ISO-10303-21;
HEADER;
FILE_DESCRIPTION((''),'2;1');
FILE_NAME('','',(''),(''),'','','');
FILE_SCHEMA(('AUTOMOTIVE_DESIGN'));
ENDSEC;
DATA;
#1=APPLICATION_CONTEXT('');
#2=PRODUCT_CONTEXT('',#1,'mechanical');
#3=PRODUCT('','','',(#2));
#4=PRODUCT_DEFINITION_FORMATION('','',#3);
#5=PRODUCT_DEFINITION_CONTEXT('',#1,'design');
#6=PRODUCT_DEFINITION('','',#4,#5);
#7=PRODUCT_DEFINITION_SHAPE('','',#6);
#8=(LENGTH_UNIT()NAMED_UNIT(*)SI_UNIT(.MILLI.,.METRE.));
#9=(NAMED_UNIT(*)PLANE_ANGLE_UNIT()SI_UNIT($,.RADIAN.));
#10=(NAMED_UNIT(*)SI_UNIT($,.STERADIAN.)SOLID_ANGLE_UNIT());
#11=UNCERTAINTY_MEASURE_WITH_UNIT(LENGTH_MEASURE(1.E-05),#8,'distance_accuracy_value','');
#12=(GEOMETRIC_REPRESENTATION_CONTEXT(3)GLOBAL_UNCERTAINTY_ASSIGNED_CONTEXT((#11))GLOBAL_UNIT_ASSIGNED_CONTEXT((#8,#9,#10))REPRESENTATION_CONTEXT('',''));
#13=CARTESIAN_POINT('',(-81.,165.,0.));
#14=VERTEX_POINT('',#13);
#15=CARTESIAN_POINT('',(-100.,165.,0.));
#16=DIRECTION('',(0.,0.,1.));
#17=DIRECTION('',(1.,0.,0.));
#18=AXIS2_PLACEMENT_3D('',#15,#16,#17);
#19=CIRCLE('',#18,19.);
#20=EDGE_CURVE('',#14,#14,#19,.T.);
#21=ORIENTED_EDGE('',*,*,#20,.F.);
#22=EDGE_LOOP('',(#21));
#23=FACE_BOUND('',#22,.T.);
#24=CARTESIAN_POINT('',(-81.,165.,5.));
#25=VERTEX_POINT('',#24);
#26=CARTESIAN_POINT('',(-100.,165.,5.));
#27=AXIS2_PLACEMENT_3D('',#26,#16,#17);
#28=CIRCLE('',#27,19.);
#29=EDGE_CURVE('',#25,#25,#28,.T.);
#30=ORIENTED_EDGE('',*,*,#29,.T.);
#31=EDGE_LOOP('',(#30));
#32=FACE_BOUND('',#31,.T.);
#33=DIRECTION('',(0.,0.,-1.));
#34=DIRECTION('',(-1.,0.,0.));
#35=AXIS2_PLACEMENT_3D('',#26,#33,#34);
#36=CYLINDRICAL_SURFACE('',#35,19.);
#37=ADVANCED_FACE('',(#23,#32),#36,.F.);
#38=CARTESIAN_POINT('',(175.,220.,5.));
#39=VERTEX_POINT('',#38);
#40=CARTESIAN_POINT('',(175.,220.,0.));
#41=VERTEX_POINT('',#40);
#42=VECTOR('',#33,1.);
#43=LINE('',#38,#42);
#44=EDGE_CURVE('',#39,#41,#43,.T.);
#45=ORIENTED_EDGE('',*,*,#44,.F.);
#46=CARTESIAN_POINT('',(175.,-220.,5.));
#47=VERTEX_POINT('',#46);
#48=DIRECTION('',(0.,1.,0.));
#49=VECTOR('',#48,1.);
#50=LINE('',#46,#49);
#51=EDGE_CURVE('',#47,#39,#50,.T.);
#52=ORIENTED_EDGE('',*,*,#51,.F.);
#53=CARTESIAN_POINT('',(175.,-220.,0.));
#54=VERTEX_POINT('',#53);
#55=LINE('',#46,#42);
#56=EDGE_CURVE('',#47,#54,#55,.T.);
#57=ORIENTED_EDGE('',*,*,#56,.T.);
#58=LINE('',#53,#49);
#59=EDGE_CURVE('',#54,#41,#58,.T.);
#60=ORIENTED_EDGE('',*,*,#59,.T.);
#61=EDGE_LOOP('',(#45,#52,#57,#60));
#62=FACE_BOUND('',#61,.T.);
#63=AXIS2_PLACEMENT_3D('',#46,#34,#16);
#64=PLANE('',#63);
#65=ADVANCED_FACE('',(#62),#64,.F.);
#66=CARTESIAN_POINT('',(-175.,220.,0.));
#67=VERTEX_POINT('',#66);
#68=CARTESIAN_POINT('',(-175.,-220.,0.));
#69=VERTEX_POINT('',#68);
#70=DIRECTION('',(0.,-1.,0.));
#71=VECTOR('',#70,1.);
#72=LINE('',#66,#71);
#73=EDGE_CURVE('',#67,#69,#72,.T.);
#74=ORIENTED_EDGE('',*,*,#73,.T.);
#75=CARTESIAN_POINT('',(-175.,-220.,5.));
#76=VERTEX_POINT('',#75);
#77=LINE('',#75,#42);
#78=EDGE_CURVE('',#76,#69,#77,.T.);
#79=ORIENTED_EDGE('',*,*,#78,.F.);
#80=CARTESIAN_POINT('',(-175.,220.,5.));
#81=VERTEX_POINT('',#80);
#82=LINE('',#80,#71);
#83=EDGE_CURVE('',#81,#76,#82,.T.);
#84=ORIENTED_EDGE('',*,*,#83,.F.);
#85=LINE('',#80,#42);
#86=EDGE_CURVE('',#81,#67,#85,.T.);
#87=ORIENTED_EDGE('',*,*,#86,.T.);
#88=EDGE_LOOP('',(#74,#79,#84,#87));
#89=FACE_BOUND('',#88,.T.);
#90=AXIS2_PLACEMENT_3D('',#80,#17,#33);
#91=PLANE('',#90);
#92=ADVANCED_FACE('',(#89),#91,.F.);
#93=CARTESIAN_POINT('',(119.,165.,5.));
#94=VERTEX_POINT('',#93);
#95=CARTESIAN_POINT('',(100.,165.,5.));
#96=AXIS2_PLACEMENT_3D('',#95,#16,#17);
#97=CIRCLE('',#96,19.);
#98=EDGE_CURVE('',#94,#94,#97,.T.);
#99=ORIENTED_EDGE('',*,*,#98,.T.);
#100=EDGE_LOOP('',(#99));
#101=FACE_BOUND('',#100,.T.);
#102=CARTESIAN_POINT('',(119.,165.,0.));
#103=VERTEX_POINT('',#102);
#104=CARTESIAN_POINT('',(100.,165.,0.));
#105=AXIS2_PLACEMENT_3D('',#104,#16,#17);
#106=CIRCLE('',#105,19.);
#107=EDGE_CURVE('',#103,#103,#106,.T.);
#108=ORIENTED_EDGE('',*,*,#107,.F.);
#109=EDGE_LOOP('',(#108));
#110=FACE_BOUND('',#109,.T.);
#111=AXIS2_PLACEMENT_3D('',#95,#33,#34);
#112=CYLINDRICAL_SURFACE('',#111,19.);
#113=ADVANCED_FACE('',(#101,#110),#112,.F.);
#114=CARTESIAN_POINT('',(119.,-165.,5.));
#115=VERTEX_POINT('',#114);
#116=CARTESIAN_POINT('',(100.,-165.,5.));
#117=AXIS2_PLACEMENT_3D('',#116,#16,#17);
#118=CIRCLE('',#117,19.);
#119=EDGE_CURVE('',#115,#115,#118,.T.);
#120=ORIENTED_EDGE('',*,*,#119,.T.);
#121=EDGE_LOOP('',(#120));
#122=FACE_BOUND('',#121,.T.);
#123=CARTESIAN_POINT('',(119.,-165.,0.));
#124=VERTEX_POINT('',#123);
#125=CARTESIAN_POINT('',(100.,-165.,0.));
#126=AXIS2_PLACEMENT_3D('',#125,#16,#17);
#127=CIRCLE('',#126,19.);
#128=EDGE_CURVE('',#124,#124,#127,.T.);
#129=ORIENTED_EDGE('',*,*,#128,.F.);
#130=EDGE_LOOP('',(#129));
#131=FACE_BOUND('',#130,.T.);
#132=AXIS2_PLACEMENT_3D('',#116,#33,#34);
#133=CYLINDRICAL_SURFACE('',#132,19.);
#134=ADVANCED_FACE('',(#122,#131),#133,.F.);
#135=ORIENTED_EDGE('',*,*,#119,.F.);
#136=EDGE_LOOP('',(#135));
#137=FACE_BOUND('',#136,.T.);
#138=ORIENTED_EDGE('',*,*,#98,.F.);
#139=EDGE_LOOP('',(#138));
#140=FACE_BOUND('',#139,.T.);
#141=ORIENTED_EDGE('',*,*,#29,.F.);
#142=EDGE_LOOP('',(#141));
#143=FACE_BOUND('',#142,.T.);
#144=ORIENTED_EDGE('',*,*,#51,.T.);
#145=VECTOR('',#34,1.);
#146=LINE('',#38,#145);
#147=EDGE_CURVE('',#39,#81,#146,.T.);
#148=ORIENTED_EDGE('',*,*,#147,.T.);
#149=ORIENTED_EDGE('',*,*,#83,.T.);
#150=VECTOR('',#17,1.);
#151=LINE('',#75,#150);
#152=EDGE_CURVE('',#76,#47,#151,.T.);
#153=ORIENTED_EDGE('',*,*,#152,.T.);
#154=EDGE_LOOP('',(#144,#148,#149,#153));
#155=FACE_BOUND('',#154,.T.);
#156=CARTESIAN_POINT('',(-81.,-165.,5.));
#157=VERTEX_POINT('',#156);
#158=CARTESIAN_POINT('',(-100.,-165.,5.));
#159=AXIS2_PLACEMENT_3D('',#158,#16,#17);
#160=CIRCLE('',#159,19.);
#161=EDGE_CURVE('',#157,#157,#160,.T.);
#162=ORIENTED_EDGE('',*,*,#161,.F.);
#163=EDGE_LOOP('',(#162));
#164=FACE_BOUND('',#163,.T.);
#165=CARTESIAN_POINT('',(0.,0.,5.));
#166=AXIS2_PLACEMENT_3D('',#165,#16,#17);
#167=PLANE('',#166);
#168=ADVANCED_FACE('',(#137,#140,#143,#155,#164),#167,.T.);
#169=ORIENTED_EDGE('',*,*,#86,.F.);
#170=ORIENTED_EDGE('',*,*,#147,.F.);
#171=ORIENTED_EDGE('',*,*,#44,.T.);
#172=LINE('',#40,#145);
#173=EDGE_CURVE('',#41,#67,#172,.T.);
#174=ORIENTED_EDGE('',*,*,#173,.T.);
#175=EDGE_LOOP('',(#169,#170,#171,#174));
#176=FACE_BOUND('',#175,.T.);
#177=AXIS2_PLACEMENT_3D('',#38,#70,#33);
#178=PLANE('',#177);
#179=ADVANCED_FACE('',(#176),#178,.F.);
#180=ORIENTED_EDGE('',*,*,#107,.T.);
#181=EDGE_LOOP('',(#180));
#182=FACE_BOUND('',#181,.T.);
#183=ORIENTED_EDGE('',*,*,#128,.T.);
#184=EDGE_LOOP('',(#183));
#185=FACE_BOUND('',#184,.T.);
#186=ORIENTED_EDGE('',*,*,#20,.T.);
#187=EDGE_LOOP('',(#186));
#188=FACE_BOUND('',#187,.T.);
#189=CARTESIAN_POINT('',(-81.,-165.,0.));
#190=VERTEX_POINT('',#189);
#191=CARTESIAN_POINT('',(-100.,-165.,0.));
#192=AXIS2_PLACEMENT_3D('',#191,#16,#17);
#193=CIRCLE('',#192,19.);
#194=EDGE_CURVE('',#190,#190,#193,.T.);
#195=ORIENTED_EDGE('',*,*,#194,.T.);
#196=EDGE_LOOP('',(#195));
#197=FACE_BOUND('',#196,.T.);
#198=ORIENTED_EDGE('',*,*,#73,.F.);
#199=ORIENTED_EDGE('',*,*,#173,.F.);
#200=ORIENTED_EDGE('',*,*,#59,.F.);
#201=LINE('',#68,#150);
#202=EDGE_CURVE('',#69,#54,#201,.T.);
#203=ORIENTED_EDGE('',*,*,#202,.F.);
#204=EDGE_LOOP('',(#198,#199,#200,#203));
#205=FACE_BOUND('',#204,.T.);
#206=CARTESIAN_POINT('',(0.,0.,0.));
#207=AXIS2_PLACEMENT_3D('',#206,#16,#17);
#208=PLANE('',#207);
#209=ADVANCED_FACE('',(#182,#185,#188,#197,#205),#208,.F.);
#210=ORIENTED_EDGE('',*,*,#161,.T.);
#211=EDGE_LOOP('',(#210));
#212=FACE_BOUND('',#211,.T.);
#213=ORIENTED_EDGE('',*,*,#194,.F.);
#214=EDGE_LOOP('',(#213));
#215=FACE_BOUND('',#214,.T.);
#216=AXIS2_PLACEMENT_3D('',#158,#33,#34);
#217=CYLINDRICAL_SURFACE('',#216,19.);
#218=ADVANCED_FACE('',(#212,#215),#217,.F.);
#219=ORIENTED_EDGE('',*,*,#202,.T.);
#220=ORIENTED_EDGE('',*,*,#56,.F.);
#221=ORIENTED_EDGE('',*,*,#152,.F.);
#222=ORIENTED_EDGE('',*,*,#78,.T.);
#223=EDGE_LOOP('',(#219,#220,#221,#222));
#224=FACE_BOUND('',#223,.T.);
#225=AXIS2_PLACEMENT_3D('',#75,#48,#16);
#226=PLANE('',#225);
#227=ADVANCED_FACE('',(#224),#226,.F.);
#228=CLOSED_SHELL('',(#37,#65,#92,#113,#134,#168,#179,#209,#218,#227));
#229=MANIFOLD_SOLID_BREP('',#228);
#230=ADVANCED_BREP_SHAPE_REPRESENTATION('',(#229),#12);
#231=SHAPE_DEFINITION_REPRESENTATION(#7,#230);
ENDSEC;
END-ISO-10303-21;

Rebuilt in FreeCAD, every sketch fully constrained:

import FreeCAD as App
import Part
import Sketcher
from FreeCAD import Vector


def add_polygon(sketch, points):
    """Adds a closed chain of lines whose ends are joined by coincident constraints."""
    first, n = sketch.GeometryCount, len(points)
    for a, b in zip(points, points[1:] + points[:1]):
        sketch.addGeometry(Part.LineSegment(App.Vector(*a, 0), App.Vector(*b, 0)), False)
    for i in range(n):
        sketch.addConstraint(Sketcher.Constraint("Coincident", first + i, 2, first + (i + 1) % n, 1))

doc = App.newDocument("Part")
params = doc.addObject("Spreadsheet::Sheet", "Params")
for row, (alias, value) in enumerate([
    ("sketch1_diameter", "38 mm"),
    ("sketch1_width", "350 mm"),
    ("sketch1_height", "440 mm"),
    ("pad1_length", "5 mm"),
], start=1):
    params.set(f"A{row}", alias)
    params.set(f"B{row}", "=" + value)
    params.setAlias(f"B{row}", alias)

body = doc.addObject("PartDesign::Body", "Body")

# Sketch on XY plane
sketch1 = body.newObject("Sketcher::SketchObject", "Sketch")
sketch1.AttachmentSupport = (doc.getObject("XY_Plane"), [""])
sketch1.MapMode = "FlatFace"
add_polygon(sketch1, [(-175, 220), (-175, -220), (175, -220), (175, 220)])  # lines 0-3
sketch1.addGeometry(Part.Circle(Vector(-100, -165, 0), Vector(0, 0, 1), 19), False)  # 4
sketch1.addGeometry(Part.Circle(Vector(100, -165, 0), Vector(0, 0, 1), 19), False)  # 5
sketch1.addGeometry(Part.Circle(Vector(-100, 165, 0), Vector(0, 0, 1), 19), False)  # 6
sketch1.addGeometry(Part.Circle(Vector(100, 165, 0), Vector(0, 0, 1), 19), False)  # 7
sketch1.addConstraint([
    Sketcher.Constraint("Vertical", 0),
    Sketcher.Constraint("Horizontal", 1),
    Sketcher.Constraint("Vertical", 2),
    Sketcher.Constraint("Horizontal", 3),
    Sketcher.Constraint("Equal", 4, 5),
    Sketcher.Constraint("Equal", 5, 6),
    Sketcher.Constraint("Equal", 6, 7),
    Sketcher.Constraint("Symmetric", 5, 3, 6, 3, -1, 1),
    Sketcher.Constraint("Symmetric", 4, 3, 7, 3, -1, 1),
    Sketcher.Constraint("Symmetric", 0, 2, 2, 2, -1, 1),
    Sketcher.Constraint("Symmetric", 4, 3, 5, 3, -2),
    Sketcher.Constraint("Diameter", 4, 38.0),
    Sketcher.Constraint("DistanceX", 1, 1, 1, 2, 350.0),
    Sketcher.Constraint("DistanceY", 0, 2, 0, 1, 440.0),
    Sketcher.Constraint("DistanceX", 4, 3, -1, 1, 100.0),
    Sketcher.Constraint("DistanceY", 4, 3, -1, 1, 165.0),
])
sketch1.setExpression("Constraints[15]", "Params.sketch1_diameter")
sketch1.setExpression("Constraints[16]", "Params.sketch1_width")
sketch1.setExpression("Constraints[17]", "Params.sketch1_height")
pad1 = body.newObject("PartDesign::Pad", "Pad")
pad1.Profile = sketch1
pad1.setExpression("Length", "Params.pad1_length")

doc.recompute()
